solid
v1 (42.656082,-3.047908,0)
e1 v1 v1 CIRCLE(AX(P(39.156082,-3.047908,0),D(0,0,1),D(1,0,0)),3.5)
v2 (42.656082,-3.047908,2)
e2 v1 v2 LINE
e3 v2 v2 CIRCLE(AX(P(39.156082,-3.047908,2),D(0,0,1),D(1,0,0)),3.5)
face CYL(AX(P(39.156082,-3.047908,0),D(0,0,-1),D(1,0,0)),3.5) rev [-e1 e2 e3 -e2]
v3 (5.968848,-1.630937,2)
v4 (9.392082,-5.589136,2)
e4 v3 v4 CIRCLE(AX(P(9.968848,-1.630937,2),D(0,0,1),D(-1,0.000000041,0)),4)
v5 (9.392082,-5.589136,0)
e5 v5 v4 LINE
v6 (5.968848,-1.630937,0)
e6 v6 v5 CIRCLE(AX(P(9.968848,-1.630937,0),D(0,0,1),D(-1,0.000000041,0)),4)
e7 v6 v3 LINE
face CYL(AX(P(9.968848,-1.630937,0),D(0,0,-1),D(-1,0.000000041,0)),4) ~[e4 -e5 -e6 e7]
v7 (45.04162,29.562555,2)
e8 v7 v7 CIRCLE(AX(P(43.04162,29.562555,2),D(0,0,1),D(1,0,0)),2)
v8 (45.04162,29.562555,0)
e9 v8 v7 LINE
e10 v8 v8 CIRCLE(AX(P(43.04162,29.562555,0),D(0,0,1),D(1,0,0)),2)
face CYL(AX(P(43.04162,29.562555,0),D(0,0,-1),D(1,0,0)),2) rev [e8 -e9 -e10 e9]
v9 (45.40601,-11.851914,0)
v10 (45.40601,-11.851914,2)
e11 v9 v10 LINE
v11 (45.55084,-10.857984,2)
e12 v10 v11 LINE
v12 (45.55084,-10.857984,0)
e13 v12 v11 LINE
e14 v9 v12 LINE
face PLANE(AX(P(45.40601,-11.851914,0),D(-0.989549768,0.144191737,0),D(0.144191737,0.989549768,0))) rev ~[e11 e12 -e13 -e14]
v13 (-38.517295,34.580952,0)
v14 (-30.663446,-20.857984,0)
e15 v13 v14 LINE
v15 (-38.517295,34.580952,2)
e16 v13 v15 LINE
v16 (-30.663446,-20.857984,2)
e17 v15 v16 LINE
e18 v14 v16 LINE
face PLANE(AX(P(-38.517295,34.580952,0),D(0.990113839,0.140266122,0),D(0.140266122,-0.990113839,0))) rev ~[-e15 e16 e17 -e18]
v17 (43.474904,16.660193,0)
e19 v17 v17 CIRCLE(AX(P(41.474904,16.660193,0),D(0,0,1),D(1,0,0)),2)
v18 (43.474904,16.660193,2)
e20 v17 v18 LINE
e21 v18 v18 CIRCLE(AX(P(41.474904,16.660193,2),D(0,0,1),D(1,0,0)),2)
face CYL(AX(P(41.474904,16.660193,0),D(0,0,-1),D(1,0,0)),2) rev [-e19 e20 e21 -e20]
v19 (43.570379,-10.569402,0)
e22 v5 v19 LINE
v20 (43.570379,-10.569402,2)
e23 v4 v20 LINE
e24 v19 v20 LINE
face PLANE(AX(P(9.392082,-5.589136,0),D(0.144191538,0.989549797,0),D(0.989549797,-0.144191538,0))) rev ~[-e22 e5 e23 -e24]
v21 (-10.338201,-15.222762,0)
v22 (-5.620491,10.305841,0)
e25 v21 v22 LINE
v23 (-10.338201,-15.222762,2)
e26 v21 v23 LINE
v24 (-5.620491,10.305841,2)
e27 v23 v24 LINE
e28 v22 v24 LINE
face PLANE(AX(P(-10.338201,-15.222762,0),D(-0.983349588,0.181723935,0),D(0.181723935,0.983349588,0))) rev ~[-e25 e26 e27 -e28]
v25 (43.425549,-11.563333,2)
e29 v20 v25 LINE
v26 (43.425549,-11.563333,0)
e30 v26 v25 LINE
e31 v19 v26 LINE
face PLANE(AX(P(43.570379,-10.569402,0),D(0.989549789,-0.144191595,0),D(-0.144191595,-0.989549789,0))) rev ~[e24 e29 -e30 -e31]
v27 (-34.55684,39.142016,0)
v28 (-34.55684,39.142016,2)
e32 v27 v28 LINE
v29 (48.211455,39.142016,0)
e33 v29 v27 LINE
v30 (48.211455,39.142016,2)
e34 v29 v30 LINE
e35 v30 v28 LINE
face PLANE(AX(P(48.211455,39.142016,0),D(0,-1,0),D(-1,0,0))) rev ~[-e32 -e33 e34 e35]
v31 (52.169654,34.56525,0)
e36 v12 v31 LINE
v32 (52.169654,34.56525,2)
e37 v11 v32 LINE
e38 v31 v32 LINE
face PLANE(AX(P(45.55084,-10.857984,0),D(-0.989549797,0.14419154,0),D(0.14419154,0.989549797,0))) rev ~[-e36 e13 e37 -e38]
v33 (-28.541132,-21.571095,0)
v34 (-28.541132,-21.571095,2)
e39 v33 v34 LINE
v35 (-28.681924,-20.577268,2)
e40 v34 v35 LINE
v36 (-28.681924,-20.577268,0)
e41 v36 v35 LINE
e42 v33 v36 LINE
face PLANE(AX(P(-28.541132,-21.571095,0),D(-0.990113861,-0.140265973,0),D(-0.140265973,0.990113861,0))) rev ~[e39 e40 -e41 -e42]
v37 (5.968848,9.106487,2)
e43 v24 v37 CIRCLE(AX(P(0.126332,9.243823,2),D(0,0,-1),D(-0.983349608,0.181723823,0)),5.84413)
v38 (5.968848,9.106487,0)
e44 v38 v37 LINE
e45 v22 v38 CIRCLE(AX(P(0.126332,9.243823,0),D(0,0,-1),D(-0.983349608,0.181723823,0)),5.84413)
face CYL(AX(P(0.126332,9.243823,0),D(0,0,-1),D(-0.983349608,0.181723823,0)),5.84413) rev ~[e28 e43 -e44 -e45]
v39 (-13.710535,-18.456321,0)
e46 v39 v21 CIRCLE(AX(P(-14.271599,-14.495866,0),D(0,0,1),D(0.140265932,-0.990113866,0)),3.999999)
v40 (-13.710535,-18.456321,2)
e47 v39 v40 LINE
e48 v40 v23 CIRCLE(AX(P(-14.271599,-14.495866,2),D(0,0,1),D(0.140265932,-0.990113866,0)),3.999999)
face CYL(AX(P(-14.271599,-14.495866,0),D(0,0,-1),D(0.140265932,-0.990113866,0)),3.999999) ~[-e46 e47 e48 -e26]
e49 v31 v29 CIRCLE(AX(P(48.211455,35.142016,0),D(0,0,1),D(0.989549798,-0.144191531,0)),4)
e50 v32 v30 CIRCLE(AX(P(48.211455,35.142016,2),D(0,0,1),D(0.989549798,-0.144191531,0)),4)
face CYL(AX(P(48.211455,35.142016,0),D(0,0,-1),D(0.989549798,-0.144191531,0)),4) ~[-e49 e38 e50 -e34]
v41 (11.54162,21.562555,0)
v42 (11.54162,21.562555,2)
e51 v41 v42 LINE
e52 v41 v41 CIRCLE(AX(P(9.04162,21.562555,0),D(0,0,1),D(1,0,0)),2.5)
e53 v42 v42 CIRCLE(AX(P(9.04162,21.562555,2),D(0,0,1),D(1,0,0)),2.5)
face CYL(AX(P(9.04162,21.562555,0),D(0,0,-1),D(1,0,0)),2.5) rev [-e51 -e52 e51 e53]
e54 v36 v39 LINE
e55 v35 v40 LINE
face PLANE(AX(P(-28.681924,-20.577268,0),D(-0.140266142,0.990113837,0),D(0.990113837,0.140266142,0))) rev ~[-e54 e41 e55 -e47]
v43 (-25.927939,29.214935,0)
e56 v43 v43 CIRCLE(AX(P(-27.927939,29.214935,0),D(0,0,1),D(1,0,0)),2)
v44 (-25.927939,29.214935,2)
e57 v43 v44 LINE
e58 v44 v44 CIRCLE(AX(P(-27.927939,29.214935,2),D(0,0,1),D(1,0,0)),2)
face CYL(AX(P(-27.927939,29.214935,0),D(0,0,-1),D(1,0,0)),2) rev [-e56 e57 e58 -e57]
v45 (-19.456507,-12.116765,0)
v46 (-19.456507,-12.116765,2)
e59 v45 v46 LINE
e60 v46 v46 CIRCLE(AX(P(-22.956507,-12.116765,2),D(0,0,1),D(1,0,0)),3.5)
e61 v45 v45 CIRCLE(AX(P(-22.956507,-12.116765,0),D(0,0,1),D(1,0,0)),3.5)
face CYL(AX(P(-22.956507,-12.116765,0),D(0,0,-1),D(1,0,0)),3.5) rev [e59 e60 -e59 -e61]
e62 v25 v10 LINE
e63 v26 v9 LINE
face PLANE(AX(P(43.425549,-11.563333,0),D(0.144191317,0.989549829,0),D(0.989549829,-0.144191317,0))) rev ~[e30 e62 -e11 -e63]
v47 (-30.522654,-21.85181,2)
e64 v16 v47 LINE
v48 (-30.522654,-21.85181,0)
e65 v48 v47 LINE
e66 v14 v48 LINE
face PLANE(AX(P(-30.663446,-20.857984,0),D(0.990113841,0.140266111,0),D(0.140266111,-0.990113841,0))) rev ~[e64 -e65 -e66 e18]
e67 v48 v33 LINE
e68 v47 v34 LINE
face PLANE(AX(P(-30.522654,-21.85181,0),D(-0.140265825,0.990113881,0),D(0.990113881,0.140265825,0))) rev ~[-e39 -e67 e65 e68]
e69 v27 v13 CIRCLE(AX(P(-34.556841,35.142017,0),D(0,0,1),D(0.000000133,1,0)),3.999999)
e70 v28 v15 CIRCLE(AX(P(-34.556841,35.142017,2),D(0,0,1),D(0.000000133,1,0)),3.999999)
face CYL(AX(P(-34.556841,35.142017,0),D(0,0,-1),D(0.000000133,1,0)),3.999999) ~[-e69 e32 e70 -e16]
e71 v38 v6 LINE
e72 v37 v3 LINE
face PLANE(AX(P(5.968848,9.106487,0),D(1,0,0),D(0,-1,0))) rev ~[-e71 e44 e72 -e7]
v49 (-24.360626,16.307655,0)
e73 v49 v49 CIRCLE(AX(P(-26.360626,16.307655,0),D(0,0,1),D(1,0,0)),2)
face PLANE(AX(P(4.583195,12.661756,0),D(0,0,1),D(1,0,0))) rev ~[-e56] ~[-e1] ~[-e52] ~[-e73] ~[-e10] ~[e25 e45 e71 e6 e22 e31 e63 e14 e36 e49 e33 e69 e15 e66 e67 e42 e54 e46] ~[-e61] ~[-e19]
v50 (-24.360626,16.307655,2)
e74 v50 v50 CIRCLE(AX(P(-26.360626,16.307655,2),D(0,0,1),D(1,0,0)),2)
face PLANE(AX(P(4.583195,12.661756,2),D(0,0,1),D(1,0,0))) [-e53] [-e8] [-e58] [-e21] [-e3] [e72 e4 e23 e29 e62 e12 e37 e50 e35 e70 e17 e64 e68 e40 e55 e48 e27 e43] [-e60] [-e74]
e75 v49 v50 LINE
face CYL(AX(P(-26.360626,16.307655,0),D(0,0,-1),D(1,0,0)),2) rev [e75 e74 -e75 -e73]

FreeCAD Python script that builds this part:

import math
import FreeCAD as App
import Part
import Sketcher

V = App.Vector

doc = App.newDocument("Part")
params = doc.addObject("Spreadsheet::Sheet", "Params")
for row, (alias, value) in enumerate([
    ("sketch1_diameter", "7 mm"),
    ("sketch1_diameter2", "7 mm"),
    ("sketch1_diameter3", "4 mm"),
    ("sketch1_diameter4", "4 mm"),
    ("sketch1_diameter5", "4 mm"),
    ("pad1_length", "2 mm"),
], start=1):
    params.set(f"A{row}", alias)
    params.set(f"B{row}", "=" + value)
    params.setAlias(f"B{row}", alias)

body = doc.addObject("PartDesign::Body", "Body")

# Sketch on XY plane
sketch1 = body.newObject("Sketcher::SketchObject", "Sketch")
sketch1.AttachmentSupport = (doc.getObject("XY_Plane"), [""])
sketch1.MapMode = "FlatFace"
sketch1.addGeometry([
    Part.LineSegment(V(48.211455, 39.142016, 0), V(-34.55684, 39.142016, 0)),  # 0
    Part.ArcOfCircle(Part.Circle(V(-34.556841, 35.142017, 0), V(0, 0, 1), 3.999999), math.radians(89.999992), math.radians(188.063253)),  # 1
    Part.LineSegment(V(-38.517295, 34.580952, 0), V(-30.663446, -20.857984, 0)),  # 2
    Part.LineSegment(V(-30.663446, -20.857984, 0), V(-30.522654, -21.85181, 0)),  # 3
    Part.LineSegment(V(-30.522654, -21.85181, 0), V(-28.541132, -21.571095, 0)),  # 4
    Part.LineSegment(V(-28.541132, -21.571095, 0), V(-28.681924, -20.577268, 0)),  # 5
    Part.LineSegment(V(-28.681924, -20.577268, 0), V(-13.710535, -18.456321, 0)),  # 6
    Part.ArcOfCircle(Part.Circle(V(-14.271599, -14.495866, 0), V(0, 0, 1), 3.999999), math.radians(-81.936765), math.radians(-10.470193)),  # 7
    Part.LineSegment(V(-10.338201, -15.222762, 0), V(-5.620491, 10.305841, 0)),  # 8
    Part.ArcOfCircle(Part.Circle(V(0.126332, 9.243823, 0), V(0, 0, 1), 5.84413), math.radians(-1.346568), math.radians(169.529816)),  # 9
    Part.LineSegment(V(5.968848, 9.106487, 0), V(5.968848, -1.630937, 0)),  # 10
    Part.ArcOfCircle(Part.Circle(V(9.968848, -1.630937, 0), V(0, 0, 1), 4), math.radians(179.999998), math.radians(261.709542)),  # 11
    Part.LineSegment(V(9.392082, -5.589136, 0), V(43.570379, -10.569402, 0)),  # 12
    Part.LineSegment(V(43.570379, -10.569402, 0), V(43.425549, -11.563333, 0)),  # 13
    Part.LineSegment(V(43.425549, -11.563333, 0), V(45.40601, -11.851914, 0)),  # 14
    Part.LineSegment(V(45.40601, -11.851914, 0), V(45.55084, -10.857984, 0)),  # 15
    Part.LineSegment(V(45.55084, -10.857984, 0), V(52.169654, 34.56525, 0)),  # 16
    Part.ArcOfCircle(Part.Circle(V(48.211455, 35.142016, 0), V(0, 0, 1), 4), math.radians(-8.290465), math.radians(89.999999)),  # 17
    Part.Circle(V(-22.956507, -12.116765, 0), V(0, 0, 1), 3.5),  # 18
    Part.Circle(V(39.156082, -3.047908, 0), V(0, 0, 1), 3.5),  # 19
    Part.Circle(V(-26.360626, 16.307655, 0), V(0, 0, 1), 2),  # 20
    Part.Circle(V(-27.927939, 29.214935, 0), V(0, 0, 1), 2),  # 21
    Part.Circle(V(41.474904, 16.660193, 0), V(0, 0, 1), 2),  # 22
    Part.Circle(V(9.04162, 21.562555, 0), V(0, 0, 1), 2.5),  # 23
    Part.Circle(V(43.04162, 29.562555, 0), V(0, 0, 1), 2),  # 24
], False)
sketch1.addConstraint([
    Sketcher.Constraint("Coincident", 0, 2, 1, 1),
    Sketcher.Constraint("Coincident", 1, 2, 2, 1),
    Sketcher.Constraint("Coincident", 2, 2, 3, 1),
    Sketcher.Constraint("Coincident", 3, 2, 4, 1),
    Sketcher.Constraint("Coincident", 4, 2, 5, 1),
    Sketcher.Constraint("Coincident", 5, 2, 6, 1),
    Sketcher.Constraint("Coincident", 6, 2, 7, 1),
    Sketcher.Constraint("Coincident", 7, 2, 8, 1),
    Sketcher.Constraint("Coincident", 8, 2, 9, 2),
    Sketcher.Constraint("Coincident", 9, 1, 10, 1),
    Sketcher.Constraint("Coincident", 10, 2, 11, 1),
    Sketcher.Constraint("Coincident", 11, 2, 12, 1),
    Sketcher.Constraint("Coincident", 12, 2, 13, 1),
    Sketcher.Constraint("Coincident", 13, 2, 14, 1),
    Sketcher.Constraint("Coincident", 14, 2, 15, 1),
    Sketcher.Constraint("Coincident", 15, 2, 16, 1),
    Sketcher.Constraint("Coincident", 16, 2, 17, 1),
    Sketcher.Constraint("Coincident", 17, 2, 0, 1),
    Sketcher.Constraint("Horizontal", 0),
    Sketcher.Constraint("Vertical", 10),
    Sketcher.Constraint("Diameter", 18, 7.0),
    Sketcher.Constraint("Diameter", 19, 7.0),
    Sketcher.Constraint("Diameter", 20, 4.0),
    Sketcher.Constraint("Diameter", 21, 4.0),
    Sketcher.Constraint("Diameter", 22, 4.0),
    Sketcher.Constraint("Diameter", 23, 5.0),
    Sketcher.Constraint("Diameter", 24, 4.0),
    Sketcher.Constraint("Radius", 1, 3.999999),
    Sketcher.Constraint("Radius", 7, 3.999999),
    Sketcher.Constraint("Radius", 11, 4.0),
    Sketcher.Constraint("Radius", 17, 4.0),
    Sketcher.Constraint("DistanceX", 23, 3, 24, 3, 34.0),
    Sketcher.Constraint("DistanceY", 23, 3, 24, 3, 8.0),
    Sketcher.Constraint("Radius", 9, 5.84413),
    Sketcher.Constraint("DistanceX", 7, 3, -1, 1, 14.271599),
    Sketcher.Constraint("DistanceX", 7, 2, -1, 1, 10.338201),
    Sketcher.Constraint("DistanceY", 7, 3, 18, 3, 2.379101),
    Sketcher.Constraint("DistanceX", 1, 3, 21, 3, 6.628902),
    Sketcher.Constraint("DistanceY", 18, 3, 21, 3, 41.3317),
    Sketcher.Constraint("DistanceY", 19, 3, 22, 3, 19.708101),
    Sketcher.Constraint("DistanceY", 20, 3, 23, 3, 5.2549),
    Sketcher.Constraint("DistanceX", 0, 2, 21, 3, 6.628901),
    Sketcher.Constraint("DistanceY", 5, 2, 7, 3, 6.081402),
    Sketcher.Constraint("DistanceY", 11, 2, 11, 3, 3.958199),
    Sketcher.Constraint("DistanceY", 11, 2, 10, 2, 3.958199),
    Sketcher.Constraint("DistanceX", 11, 3, 13, 2, 33.456701),
    Sketcher.Constraint("DistanceX", 17, 3, 16, 2, 3.958199),
    Sketcher.Constraint("DistanceX", 17, 2, 16, 2, 3.958199),
    Sketcher.Constraint("Distance", 3, 1.003749),
    Sketcher.Constraint("Distance", 5, 1.00375),
    Sketcher.Constraint("Distance", 12, 34.539239),
    Sketcher.Constraint("Distance", 16, 45.902929),
    Sketcher.Constraint("DistanceX", 0, 2, 0, 1, 82.768295),
    Sketcher.Constraint("DistanceY", 10, 2, 10, 1, 10.737424),
    Sketcher.Constraint("DistanceX", 1, 3, -1, 1, 34.556841),
    Sketcher.Constraint("DistanceX", -1, 1, 9, 3, 0.126332),
    Sketcher.Constraint("DistanceX", -1, 1, 19, 3, 39.156082),
    Sketcher.Constraint("DistanceY", 19, 3, -1, 1, 3.047908),
    Sketcher.Constraint("DistanceX", -1, 1, 23, 3, 9.04162),
    Sketcher.Constraint("DistanceY", -1, 1, 1, 2, 34.580952),
    Sketcher.Constraint("DistanceY", 3, 2, -1, 1, 21.85181),
    Sketcher.Constraint("DistanceY", 5, 2, -1, 1, 20.577268),
    Sketcher.Constraint("DistanceY", 6, 2, -1, 1, 18.456321),
    Sketcher.Constraint("DistanceX", 8, 2, -1, 1, 5.620491),
    Sketcher.Constraint("DistanceY", -1, 1, 8, 2, 10.305841),
    Sketcher.Constraint("DistanceX", -1, 1, 10, 2, 5.968848),
    Sketcher.Constraint("DistanceX", -1, 1, 12, 2, 43.570379),
    Sketcher.Constraint("DistanceX", -1, 1, 14, 2, 45.40601),
    Sketcher.Constraint("DistanceX", -1, 1, 15, 2, 45.55084),
    Sketcher.Constraint("DistanceY", -1, 1, 16, 2, 34.56525),
    Sketcher.Constraint("DistanceX", 18, 3, 7, 3, 8.684908),
    Sketcher.Constraint("DistanceY", 20, 3, 1, 3, 18.834362),
    Sketcher.Constraint("DistanceX", 20, 3, 18, 3, 3.404119),
    Sketcher.Constraint("DistanceX", 22, 3, 17, 3, 6.736551),
    Sketcher.Constraint("DistanceX", 2, 2, 18, 3, 7.706939),
    Sketcher.Constraint("DistanceY", 2, 2, 18, 3, 8.741219),
    Sketcher.Constraint("DistanceX", 3, 2, 4, 2, 1.981522),
    Sketcher.Constraint("DistanceY", 4, 2, 2, 2, 0.713111),
    Sketcher.Constraint("DistanceY", 13, 2, 12, 2, 0.993931),
    Sketcher.Constraint("DistanceY", 14, 2, 13, 2, 0.288581),
])
sketch1.setExpression("Constraints[20]", "Params.sketch1_diameter")
sketch1.setExpression("Constraints[21]", "Params.sketch1_diameter2")
sketch1.setExpression("Constraints[22]", "Params.sketch1_diameter3")
sketch1.setExpression("Constraints[23]", "Params.sketch1_diameter4")
sketch1.setExpression("Constraints[24]", "Params.sketch1_diameter5")
pad1 = body.newObject("PartDesign::Pad", "Pad")
pad1.Profile = sketch1
pad1.setExpression("Length", "Params.pad1_length")

doc.recompute()
